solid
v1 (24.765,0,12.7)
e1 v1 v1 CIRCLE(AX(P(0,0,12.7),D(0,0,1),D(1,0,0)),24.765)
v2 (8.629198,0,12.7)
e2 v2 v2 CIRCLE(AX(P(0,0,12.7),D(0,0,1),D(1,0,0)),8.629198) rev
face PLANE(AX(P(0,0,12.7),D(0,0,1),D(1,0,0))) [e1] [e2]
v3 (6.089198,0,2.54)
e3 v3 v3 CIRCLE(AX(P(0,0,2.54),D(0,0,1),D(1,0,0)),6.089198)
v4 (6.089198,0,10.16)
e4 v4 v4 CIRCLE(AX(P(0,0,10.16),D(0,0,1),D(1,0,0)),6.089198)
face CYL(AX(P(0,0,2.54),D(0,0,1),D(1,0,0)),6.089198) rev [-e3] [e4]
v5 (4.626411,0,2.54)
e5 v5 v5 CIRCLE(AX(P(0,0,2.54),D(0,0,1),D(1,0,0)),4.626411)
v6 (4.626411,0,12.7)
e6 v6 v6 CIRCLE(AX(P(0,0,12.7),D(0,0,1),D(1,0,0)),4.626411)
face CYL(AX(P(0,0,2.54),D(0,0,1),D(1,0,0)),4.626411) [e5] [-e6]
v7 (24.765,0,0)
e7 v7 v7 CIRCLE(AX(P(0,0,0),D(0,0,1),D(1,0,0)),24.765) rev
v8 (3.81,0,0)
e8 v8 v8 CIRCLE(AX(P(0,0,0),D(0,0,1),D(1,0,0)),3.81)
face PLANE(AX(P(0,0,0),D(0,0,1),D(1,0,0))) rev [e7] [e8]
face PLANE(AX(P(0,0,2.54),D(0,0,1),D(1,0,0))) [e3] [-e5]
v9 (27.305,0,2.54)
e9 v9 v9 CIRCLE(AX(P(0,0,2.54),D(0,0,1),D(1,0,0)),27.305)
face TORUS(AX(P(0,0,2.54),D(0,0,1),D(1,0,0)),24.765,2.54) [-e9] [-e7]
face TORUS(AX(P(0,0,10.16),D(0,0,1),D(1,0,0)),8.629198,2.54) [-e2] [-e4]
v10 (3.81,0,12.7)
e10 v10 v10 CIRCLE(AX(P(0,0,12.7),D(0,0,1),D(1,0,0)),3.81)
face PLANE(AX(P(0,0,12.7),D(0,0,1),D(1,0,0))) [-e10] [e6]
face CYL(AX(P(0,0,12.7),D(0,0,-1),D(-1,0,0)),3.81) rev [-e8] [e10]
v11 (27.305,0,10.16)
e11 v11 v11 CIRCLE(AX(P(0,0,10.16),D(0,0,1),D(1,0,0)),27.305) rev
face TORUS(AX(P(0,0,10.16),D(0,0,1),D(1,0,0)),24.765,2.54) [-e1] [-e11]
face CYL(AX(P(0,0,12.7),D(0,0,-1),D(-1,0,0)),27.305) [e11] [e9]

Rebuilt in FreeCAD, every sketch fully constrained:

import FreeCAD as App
import Part
import Sketcher

V = App.Vector
Q = App.Units.Quantity


def edges_at(feature, points):
    """Names of the edges that pass closest to the given points."""
    edges = feature.Shape.Edges
    near = lambda p: min(range(len(edges)), key=lambda i: edges[i].distToShape(Part.Vertex(*p))[0])
    return sorted({f"Edge{near(p) + 1}" for p in points})

doc = App.newDocument("Part")
body = doc.addObject("PartDesign::Body", "Body")

# Sketch on XY plane
sketch1 = doc.addObject("Sketcher::SketchObject", "Sketch")
body.addObject(sketch1)
sketch1.AttachmentSupport = (doc.XY_Plane, [""])
sketch1.MapMode = "FlatFace"
sketch1.addGeometry([
    Part.Circle(V(0, 0, 0), V(0, 0, 1), 27.3),
    Part.Circle(V(0, 0, 0), V(0, 0, 1), 3.8),
], False)
sketch1.addConstraint([
    Sketcher.Constraint("Coincident", 0, 3, -1, 1),
    Sketcher.Constraint("Coincident", 1, 3, -1, 1),
    Sketcher.Constraint("Diameter", 1, Q("0.3 in")),
    Sketcher.Constraint("Diameter", 0, Q("2.15 in")),
])
pad1 = doc.addObject("PartDesign::Pad", "Pad")
body.addObject(pad1)
pad1.Profile = sketch1
pad1.Length = Q("0.5 in")

# Sketch on XY plane
sketch2 = doc.addObject("Sketcher::SketchObject", "Sketch001")
body.addObject(sketch2)
sketch2.AttachmentSupport = (doc.XY_Plane, [""])
sketch2.MapMode = "FlatFace"
sketch2.AttachmentOffset = App.Placement(V(0, 0, 0.5 * 25.4), App.Rotation())
sketch2.addGeometry([
    Part.Circle(V(0, 0, 0), V(0, 0, 1), 6.1),
    Part.Circle(V(0, 0, 0), V(0, 0, 1), 4.6),
], False)
sketch2.addConstraint([
    Sketcher.Constraint("Coincident", 0, 3, -1, 1),
    Sketcher.Constraint("Coincident", 1, 3, -1, 1),
    Sketcher.Constraint("Diameter", 1, Q("9.252821 mm")),
    Sketcher.Constraint("Diameter", 0, Q("12.178396 mm")),
])
pocket1 = doc.addObject("PartDesign::Pocket", "Pocket")
body.addObject(pocket1)
pocket1.Profile = sketch2
pocket1.Length = Q("0.4 in")
doc.recompute()

fillet = doc.addObject("PartDesign::Fillet", "Fillet")
body.addObject(fillet)
fillet.Base = (pocket1, edges_at(pocket1, [(-6.089, 0, 12.7), (-27.305, 0, 12.7)]))
fillet.Radius = Q("0.1 in")
doc.recompute()

fillet2 = doc.addObject("PartDesign::Fillet", "Fillet001")
body.addObject(fillet2)
fillet2.Base = (fillet, edges_at(fillet, [(-27.305, 0, 0)]))
fillet2.Radius = Q("0.1 in")

doc.recompute()
